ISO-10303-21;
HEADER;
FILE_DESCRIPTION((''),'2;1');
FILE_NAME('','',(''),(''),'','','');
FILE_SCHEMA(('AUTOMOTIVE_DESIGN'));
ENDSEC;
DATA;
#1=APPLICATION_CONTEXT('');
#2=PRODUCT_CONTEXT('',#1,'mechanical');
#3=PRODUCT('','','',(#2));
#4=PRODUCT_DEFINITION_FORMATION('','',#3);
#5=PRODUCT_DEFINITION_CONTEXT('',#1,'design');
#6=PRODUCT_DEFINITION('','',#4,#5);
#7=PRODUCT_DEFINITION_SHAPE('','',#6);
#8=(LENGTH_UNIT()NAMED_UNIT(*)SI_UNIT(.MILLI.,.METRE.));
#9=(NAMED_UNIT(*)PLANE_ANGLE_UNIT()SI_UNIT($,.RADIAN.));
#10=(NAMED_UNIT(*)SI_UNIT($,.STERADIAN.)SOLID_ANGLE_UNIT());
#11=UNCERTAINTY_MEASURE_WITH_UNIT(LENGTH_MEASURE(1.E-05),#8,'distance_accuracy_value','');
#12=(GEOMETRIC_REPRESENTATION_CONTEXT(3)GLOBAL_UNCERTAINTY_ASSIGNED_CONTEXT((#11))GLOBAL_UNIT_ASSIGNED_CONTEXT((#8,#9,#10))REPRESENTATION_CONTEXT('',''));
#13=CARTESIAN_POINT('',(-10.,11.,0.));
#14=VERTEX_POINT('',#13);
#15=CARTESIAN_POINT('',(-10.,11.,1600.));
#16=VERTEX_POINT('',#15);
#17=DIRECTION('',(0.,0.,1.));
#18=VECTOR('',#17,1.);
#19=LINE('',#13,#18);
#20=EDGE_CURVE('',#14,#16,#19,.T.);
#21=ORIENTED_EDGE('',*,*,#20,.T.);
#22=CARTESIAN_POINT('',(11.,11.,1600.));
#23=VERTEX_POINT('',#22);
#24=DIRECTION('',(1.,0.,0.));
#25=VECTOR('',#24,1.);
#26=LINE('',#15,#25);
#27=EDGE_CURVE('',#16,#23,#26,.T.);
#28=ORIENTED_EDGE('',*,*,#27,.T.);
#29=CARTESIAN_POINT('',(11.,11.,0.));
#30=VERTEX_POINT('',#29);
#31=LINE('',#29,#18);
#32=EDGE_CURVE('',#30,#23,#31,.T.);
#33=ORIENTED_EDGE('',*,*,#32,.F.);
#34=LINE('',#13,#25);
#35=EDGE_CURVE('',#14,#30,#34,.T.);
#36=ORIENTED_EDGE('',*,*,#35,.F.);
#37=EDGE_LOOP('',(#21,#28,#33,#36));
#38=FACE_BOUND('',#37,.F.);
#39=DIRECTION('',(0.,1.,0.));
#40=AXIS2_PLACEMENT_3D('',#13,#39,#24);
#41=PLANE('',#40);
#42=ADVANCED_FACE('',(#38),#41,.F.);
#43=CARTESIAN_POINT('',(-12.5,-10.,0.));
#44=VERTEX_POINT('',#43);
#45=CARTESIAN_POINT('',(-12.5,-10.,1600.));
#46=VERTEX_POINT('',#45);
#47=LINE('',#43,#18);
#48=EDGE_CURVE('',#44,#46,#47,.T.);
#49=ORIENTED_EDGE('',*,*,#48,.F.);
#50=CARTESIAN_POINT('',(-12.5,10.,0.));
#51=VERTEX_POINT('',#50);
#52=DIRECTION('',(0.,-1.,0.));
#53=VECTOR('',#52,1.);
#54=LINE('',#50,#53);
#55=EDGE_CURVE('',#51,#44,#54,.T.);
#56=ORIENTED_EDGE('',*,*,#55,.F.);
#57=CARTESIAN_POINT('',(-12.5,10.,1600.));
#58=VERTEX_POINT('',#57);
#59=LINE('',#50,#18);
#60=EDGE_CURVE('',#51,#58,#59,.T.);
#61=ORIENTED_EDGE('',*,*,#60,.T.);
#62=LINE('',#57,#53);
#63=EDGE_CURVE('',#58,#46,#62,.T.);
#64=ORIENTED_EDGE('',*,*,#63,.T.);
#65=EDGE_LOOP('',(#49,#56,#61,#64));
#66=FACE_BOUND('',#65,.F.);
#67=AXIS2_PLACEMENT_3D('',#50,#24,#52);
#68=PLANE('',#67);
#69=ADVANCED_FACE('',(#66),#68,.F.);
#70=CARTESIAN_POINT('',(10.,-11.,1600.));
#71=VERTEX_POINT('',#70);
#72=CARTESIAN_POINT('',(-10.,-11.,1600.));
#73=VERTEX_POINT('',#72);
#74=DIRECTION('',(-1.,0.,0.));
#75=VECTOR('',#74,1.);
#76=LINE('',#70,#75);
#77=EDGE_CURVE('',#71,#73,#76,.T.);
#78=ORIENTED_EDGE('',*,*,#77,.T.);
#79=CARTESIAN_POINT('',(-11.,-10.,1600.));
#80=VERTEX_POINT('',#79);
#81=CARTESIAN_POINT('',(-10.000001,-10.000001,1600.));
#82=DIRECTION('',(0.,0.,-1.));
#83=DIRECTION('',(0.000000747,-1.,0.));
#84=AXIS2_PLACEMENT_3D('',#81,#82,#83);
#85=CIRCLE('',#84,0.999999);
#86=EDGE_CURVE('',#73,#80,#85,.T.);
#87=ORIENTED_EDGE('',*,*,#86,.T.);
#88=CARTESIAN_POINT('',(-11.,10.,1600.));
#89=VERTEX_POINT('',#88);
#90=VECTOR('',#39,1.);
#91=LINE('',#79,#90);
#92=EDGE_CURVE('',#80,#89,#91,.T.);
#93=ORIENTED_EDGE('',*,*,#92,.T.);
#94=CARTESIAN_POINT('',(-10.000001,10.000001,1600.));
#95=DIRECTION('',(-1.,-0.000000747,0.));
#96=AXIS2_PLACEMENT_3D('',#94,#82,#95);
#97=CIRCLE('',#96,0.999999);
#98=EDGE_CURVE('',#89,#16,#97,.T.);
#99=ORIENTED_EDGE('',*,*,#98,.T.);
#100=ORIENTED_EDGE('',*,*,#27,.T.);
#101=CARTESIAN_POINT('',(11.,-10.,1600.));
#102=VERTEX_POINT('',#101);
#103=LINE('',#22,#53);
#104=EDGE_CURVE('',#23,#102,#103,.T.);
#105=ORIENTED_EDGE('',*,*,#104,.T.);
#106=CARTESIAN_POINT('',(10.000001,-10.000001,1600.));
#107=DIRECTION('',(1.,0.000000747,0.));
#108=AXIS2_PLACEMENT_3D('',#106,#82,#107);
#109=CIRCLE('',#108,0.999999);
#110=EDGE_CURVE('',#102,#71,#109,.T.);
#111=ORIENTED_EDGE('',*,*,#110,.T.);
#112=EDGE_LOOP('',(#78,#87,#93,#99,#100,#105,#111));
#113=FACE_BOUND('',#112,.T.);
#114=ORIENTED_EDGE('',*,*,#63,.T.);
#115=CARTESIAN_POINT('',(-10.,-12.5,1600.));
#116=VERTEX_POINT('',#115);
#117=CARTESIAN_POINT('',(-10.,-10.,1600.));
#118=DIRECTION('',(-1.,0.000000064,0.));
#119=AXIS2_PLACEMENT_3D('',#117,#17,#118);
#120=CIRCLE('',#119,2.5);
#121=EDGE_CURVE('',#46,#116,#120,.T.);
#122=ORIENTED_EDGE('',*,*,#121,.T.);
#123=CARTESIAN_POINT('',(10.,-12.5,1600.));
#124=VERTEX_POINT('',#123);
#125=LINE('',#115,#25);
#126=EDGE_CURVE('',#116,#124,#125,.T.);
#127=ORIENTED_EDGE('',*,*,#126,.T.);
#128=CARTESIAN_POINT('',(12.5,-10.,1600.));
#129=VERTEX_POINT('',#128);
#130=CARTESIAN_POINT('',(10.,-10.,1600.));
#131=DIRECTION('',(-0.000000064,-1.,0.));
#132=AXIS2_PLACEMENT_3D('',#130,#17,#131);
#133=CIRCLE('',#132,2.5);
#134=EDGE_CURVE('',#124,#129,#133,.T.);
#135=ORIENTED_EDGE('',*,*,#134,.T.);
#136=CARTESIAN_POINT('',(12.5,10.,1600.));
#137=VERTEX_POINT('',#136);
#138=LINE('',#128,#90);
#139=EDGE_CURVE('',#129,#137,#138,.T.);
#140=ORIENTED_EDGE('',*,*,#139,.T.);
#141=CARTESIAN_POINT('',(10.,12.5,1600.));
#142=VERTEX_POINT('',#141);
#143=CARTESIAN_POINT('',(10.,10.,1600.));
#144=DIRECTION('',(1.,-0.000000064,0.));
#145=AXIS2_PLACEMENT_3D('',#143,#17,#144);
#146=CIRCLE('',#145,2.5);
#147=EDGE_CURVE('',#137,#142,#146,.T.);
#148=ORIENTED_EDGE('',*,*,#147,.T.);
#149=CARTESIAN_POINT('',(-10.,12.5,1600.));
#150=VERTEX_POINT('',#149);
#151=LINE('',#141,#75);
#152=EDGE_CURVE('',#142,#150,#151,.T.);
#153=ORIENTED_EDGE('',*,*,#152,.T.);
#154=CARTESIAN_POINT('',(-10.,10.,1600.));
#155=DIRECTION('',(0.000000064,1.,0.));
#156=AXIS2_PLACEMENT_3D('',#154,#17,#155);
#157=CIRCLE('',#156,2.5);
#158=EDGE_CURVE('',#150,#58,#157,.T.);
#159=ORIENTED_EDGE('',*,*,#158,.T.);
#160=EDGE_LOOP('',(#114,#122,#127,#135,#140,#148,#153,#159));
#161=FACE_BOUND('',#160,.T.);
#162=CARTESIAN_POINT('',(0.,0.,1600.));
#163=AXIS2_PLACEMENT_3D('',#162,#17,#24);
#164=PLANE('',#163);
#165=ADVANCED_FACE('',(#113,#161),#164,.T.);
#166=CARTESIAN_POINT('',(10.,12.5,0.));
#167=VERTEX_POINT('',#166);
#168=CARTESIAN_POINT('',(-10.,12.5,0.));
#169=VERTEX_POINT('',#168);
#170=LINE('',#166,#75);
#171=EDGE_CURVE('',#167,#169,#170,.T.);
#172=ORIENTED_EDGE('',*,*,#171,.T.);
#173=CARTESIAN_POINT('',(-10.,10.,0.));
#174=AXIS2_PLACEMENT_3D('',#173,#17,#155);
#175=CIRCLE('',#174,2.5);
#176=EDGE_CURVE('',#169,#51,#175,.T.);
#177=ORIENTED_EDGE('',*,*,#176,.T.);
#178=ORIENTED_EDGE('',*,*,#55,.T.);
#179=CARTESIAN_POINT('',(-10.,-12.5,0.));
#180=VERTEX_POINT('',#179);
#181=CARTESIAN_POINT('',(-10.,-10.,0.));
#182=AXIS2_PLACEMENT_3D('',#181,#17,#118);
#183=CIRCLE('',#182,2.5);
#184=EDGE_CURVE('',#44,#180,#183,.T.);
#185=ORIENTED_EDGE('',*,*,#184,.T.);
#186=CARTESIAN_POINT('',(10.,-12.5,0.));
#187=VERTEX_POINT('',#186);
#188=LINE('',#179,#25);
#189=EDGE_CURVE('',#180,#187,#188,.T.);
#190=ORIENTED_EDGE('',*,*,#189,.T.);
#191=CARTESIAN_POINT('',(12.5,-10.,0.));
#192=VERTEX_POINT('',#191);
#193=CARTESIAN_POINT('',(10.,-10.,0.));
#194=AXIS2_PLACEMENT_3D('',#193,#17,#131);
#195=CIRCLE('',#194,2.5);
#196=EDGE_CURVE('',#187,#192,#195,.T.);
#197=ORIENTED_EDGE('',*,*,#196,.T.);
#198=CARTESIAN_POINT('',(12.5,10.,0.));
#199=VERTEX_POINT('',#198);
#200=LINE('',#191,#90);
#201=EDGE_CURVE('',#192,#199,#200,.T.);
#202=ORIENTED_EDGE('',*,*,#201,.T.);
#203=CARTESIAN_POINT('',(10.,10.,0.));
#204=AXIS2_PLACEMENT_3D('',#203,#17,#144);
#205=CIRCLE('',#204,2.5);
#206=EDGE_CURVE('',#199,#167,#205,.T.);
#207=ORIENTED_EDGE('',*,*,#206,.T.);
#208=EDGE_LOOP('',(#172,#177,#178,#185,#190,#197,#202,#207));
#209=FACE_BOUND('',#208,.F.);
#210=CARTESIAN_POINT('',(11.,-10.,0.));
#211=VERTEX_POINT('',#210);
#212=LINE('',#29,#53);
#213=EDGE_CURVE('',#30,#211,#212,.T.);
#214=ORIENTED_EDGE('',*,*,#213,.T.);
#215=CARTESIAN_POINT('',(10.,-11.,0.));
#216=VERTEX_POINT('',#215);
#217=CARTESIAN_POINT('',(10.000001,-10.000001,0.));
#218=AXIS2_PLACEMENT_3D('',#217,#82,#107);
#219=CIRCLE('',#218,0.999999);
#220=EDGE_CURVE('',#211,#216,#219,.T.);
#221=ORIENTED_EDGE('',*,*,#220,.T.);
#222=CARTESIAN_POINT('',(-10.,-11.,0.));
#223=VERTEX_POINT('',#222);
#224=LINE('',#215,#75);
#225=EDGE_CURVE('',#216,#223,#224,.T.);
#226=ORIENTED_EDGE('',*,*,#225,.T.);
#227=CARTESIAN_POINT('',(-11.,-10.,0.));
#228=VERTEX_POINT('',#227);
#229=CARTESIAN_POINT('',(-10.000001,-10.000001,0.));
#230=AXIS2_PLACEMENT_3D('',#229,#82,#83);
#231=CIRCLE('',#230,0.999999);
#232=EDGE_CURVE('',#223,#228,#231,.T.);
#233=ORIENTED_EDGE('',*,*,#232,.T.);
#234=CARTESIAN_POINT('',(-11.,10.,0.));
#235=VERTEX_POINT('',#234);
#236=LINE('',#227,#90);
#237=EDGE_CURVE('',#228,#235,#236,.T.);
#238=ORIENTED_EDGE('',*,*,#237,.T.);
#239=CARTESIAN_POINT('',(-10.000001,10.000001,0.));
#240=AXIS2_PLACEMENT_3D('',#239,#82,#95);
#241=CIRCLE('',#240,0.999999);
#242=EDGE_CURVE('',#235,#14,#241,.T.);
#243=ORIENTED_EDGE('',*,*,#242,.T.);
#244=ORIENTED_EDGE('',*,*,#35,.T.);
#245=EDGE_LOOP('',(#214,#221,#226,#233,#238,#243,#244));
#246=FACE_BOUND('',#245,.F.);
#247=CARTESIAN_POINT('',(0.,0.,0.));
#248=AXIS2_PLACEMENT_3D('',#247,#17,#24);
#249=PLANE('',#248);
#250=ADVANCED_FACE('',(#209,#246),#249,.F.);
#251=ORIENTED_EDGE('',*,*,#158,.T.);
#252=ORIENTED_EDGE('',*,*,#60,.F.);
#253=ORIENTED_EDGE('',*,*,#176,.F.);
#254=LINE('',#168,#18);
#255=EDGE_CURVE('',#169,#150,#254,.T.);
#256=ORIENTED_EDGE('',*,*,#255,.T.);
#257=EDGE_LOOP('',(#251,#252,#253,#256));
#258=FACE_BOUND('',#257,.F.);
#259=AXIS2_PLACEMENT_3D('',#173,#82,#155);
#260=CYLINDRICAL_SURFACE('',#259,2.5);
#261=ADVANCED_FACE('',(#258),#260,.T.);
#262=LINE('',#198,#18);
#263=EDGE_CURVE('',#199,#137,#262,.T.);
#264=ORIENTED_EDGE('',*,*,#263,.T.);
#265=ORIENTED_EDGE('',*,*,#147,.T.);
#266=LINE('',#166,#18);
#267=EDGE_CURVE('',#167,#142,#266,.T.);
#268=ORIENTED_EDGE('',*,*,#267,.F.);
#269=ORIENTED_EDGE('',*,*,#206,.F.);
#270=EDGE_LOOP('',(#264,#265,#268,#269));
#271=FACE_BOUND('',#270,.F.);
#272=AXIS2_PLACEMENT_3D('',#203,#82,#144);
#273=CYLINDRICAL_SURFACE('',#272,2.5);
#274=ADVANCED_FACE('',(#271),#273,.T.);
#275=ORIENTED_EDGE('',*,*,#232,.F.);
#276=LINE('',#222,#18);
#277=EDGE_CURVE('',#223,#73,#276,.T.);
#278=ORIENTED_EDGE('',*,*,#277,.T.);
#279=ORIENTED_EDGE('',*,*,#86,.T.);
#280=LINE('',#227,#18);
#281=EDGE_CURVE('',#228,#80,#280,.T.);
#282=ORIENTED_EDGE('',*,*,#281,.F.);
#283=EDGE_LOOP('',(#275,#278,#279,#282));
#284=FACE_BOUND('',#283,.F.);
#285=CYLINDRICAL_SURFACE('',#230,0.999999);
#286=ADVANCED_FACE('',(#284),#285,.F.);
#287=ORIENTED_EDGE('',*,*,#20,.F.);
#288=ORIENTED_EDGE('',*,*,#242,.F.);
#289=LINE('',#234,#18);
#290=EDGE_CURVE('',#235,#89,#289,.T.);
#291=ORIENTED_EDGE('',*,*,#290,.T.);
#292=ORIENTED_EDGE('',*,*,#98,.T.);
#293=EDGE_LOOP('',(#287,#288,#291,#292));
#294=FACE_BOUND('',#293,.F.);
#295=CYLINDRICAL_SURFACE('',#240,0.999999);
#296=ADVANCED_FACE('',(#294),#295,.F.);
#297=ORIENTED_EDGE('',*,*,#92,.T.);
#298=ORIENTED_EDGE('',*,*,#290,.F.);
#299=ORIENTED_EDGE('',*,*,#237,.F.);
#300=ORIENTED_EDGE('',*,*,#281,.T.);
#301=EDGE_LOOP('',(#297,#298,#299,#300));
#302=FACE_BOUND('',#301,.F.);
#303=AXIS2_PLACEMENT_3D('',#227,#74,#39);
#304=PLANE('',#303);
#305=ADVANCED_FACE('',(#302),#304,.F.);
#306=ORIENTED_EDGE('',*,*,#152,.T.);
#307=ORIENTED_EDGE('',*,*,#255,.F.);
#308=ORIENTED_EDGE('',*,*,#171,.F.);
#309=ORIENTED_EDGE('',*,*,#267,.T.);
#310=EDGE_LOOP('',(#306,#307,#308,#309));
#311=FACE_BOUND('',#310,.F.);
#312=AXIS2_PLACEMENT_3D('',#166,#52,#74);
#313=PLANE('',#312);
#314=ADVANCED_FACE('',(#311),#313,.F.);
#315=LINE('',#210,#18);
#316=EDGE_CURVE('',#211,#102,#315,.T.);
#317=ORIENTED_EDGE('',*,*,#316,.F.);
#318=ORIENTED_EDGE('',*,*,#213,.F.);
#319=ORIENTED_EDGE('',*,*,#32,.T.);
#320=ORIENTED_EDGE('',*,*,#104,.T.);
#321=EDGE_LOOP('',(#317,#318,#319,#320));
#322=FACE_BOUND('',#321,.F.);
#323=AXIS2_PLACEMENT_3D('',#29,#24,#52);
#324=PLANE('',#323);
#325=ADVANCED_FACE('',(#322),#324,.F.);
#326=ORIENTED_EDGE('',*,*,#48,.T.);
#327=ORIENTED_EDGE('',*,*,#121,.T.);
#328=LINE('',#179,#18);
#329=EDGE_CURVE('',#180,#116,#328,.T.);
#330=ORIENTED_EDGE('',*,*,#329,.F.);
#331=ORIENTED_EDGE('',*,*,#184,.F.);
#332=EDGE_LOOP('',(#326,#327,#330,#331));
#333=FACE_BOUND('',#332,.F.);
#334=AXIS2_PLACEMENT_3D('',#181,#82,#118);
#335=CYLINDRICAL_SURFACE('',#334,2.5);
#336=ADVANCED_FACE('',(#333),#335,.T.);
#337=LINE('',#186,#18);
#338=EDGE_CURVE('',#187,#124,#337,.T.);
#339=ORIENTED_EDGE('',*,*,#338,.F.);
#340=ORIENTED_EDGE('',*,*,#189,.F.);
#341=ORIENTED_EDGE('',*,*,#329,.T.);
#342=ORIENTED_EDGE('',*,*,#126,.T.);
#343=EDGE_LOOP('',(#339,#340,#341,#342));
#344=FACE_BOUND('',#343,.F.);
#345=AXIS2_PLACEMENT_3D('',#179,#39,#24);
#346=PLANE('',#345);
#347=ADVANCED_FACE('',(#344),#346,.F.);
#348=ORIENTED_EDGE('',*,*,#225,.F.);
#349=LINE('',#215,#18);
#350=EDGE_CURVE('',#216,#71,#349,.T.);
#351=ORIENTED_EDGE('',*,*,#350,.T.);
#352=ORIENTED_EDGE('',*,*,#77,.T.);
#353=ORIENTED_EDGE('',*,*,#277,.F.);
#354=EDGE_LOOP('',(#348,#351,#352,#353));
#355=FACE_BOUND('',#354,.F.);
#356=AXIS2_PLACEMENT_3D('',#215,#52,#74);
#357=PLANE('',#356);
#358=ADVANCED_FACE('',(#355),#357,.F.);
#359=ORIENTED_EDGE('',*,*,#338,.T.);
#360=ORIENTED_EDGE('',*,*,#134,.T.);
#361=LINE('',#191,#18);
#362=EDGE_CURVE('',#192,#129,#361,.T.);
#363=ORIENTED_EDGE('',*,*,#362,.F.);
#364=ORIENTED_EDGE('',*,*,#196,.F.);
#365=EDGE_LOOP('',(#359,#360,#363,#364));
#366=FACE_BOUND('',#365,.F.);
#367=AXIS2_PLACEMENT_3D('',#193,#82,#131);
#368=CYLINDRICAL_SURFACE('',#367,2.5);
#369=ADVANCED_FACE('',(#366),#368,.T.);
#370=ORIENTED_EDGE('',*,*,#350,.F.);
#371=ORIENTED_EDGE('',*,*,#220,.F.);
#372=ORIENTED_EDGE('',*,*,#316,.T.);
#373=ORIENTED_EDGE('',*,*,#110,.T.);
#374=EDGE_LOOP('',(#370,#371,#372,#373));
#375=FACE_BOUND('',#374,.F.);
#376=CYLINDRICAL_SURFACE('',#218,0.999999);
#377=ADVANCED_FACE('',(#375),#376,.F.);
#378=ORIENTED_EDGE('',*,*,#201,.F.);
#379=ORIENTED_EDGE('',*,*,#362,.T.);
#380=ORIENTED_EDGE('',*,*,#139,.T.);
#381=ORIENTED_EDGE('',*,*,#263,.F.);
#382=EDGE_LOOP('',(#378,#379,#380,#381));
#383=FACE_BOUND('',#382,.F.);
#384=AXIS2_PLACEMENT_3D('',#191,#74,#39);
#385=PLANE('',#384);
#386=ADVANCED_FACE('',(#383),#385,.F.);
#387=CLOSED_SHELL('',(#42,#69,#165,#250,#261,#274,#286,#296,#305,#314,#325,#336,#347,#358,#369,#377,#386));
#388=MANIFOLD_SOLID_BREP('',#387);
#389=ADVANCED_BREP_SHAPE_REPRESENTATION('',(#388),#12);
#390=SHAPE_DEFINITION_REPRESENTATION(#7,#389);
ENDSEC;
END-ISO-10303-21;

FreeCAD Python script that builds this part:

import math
import FreeCAD as App
import Part
import Sketcher
from FreeCAD import Vector
Q = App.Units.Quantity

doc = App.newDocument("Part")
params = doc.addObject("Spreadsheet::Sheet", "Params")
for row, (alias, value) in enumerate([
    ("sketch1_radius", "0.999999 mm"),
    ("sketch1_radius2", "2.5 mm"),
    ("sketch1_width", "20 mm"),
    ("pad1_length", "1600 mm"),
], start=1):
    params.set(f"A{row}", alias)
    params.set(f"B{row}", "=" + value)
    params.setAlias(f"B{row}", alias)

body = doc.addObject("PartDesign::Body", "Body")

# Sketch on XY plane
sketch1 = body.newObject("Sketcher::SketchObject", "Sketch")
sketch1.AttachmentSupport = (doc.getObject("XY_Plane"), [""])
sketch1.MapMode = "FlatFace"
sketch1.addGeometry([
    Part.ArcOfCircle(Part.Circle(Vector(10, 10, 0), Vector(0, 0, 1), 2.5), math.radians(0), math.radians(90)),  # 0
    Part.LineSegment(Vector(10, 12.5, 0), Vector(-10, 12.5, 0)),  # 1
    Part.ArcOfCircle(Part.Circle(Vector(-10, 10, 0), Vector(0, 0, 1), 2.5), math.radians(90), math.radians(180)),  # 2
    Part.LineSegment(Vector(-12.5, 10, 0), Vector(-12.5, -10, 0)),  # 3
    Part.ArcOfCircle(Part.Circle(Vector(-10, -10, 0), Vector(0, 0, 1), 2.5), math.radians(180), math.radians(270)),  # 4
    Part.LineSegment(Vector(-10, -12.5, 0), Vector(10, -12.5, 0)),  # 5
    Part.ArcOfCircle(Part.Circle(Vector(10, -10, 0), Vector(0, 0, 1), 2.5), math.radians(-90), math.radians(0)),  # 6
    Part.LineSegment(Vector(12.5, -10, 0), Vector(12.5, 10, 0)),  # 7
    Part.LineSegment(Vector(11, 11, 0), Vector(11, -10, 0)),  # 8
    Part.ArcOfCircle(Part.Circle(Vector(10, -10, 0), Vector(0, 0, 1), 1), math.radians(-90), math.radians(0)),  # 9
    Part.LineSegment(Vector(10, -11, 0), Vector(-10, -11, 0)),  # 10
    Part.ArcOfCircle(Part.Circle(Vector(-10, -10, 0), Vector(0, 0, 1), 1), math.radians(180), math.radians(270)),  # 11
    Part.LineSegment(Vector(-11, -10, 0), Vector(-11, 10, 0)),  # 12
    Part.ArcOfCircle(Part.Circle(Vector(-10, 10, 0), Vector(0, 0, 1), 1), math.radians(90), math.radians(180)),  # 13
    Part.LineSegment(Vector(-10, 11, 0), Vector(11, 11, 0)),  # 14
], False)
sketch1.addConstraint([
    Sketcher.Constraint("Tangent", 0, 2, 1, 1),
    Sketcher.Constraint("Tangent", 1, 2, 2, 1),
    Sketcher.Constraint("Tangent", 2, 2, 3, 1),
    Sketcher.Constraint("Tangent", 3, 2, 4, 1),
    Sketcher.Constraint("Tangent", 4, 2, 5, 1),
    Sketcher.Constraint("Tangent", 5, 2, 6, 1),
    Sketcher.Constraint("Tangent", 6, 2, 7, 1),
    Sketcher.Constraint("Tangent", 7, 2, 0, 1),
    Sketcher.Constraint("Tangent", 8, 2, 9, 2),
    Sketcher.Constraint("Tangent", 9, 1, 10, 1),
    Sketcher.Constraint("Tangent", 10, 2, 11, 2),
    Sketcher.Constraint("Tangent", 11, 1, 12, 1),
    Sketcher.Constraint("Tangent", 12, 2, 13, 2),
    Sketcher.Constraint("Tangent", 13, 1, 14, 1),
    Sketcher.Constraint("Coincident", 14, 2, 8, 1),
    Sketcher.Constraint("Horizontal", 1),
    Sketcher.Constraint("Vertical", 3),
    Sketcher.Constraint("Horizontal", 5),
    Sketcher.Constraint("Vertical", 7),
    Sketcher.Constraint("Vertical", 8),
    Sketcher.Constraint("Horizontal", 10),
    Sketcher.Constraint("Vertical", 12),
    Sketcher.Constraint("Horizontal", 14),
    Sketcher.Constraint("Coincident", 9, 3, 6, 3),
    Sketcher.Constraint("Coincident", 11, 3, 4, 3),
    Sketcher.Constraint("Coincident", 13, 3, 2, 3),
    Sketcher.Constraint("Equal", 0, 2),
    Sketcher.Constraint("Equal", 2, 4),
    Sketcher.Constraint("Equal", 4, 6),
    Sketcher.Constraint("Symmetric", 0, 3, 4, 3, -1, 1),
    Sketcher.Constraint("Equal", 10, 3),
    Sketcher.Constraint("Radius", 9, Q("0.999999 mm")),
    Sketcher.Constraint("Radius", 0, Q("2.5 mm")),
    Sketcher.Constraint("DistanceX", 1, 2, 1, 1, Q("20 mm")),
])
sketch1.setExpression("Constraints[31]", "Params.sketch1_radius")
sketch1.setExpression("Constraints[32]", "Params.sketch1_radius2")
sketch1.setExpression("Constraints[33]", "Params.sketch1_width")
pad1 = body.newObject("PartDesign::Pad", "Pad")
pad1.Profile = sketch1
pad1.setExpression("Length", "Params.pad1_length")

doc.recompute()
